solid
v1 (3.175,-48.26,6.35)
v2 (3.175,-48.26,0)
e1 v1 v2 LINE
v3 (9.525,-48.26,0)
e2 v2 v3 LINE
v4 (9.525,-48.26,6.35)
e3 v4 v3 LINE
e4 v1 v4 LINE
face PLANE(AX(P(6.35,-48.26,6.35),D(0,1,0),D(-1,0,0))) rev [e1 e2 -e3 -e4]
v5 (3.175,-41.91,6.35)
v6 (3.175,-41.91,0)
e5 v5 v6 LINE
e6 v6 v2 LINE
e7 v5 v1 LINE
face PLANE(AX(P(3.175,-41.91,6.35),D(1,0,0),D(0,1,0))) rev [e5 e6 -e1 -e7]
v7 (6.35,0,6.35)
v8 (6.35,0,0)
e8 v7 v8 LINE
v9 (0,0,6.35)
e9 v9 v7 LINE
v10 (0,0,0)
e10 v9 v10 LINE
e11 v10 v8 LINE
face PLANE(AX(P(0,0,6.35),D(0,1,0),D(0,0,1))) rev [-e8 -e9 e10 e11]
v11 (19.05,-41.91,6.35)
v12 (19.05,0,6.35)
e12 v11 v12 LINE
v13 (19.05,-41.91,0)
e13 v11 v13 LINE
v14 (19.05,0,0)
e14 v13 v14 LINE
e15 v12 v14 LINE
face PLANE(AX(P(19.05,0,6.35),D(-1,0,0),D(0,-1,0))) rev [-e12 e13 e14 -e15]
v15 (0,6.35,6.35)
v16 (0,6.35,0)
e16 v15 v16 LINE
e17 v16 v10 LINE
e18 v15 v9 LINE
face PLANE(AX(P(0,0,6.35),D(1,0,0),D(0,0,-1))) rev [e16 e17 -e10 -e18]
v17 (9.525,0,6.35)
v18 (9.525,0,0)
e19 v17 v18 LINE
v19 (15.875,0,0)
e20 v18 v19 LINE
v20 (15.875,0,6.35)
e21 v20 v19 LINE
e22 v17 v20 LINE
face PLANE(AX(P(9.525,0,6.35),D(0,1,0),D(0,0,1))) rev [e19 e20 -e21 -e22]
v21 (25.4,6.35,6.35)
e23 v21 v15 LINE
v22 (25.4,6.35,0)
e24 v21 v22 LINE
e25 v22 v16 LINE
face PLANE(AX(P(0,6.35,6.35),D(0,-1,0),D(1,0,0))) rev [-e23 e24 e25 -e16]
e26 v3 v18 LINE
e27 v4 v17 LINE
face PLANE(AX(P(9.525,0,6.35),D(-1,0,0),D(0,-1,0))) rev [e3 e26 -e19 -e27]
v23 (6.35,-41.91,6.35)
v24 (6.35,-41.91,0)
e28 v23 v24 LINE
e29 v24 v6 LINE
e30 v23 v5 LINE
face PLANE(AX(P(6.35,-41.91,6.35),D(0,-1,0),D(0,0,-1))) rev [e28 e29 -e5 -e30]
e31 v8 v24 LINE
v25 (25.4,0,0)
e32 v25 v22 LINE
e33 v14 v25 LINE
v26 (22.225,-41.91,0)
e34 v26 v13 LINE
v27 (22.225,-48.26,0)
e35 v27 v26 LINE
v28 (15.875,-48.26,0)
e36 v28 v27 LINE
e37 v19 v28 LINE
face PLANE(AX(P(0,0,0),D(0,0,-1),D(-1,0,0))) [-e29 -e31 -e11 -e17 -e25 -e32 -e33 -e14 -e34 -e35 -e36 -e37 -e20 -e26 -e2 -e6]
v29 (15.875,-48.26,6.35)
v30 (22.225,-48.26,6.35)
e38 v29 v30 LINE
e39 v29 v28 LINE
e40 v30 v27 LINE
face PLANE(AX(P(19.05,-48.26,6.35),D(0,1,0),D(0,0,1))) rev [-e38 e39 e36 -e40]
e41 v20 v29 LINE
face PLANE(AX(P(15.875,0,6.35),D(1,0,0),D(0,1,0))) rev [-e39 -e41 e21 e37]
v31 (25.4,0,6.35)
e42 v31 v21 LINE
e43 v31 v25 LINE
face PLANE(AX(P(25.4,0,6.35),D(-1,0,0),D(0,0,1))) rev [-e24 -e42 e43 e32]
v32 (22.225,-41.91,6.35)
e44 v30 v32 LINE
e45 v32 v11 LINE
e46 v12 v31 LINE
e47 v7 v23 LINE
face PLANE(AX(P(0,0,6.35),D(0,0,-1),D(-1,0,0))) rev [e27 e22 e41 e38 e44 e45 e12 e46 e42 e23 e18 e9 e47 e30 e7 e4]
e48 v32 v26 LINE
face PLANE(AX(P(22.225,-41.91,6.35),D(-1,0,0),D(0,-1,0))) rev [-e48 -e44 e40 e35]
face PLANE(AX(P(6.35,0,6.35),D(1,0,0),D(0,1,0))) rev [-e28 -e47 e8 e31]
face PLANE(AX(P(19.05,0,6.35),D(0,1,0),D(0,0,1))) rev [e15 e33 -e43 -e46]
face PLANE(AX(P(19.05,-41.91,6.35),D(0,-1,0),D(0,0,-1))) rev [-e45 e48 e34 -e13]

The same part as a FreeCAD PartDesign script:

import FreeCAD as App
import Part
import Sketcher

V = App.Vector
Q = App.Units.Quantity

doc = App.newDocument("Part")
params = doc.addObject("Spreadsheet::Sheet", "Params")
for row, (alias, value) in enumerate([
    ("sketch1_width", "1 in"),
    ("sketch1_height", "1.9 in"),
    ("sketch1_width2", "0.25 in"),
    ("pad1_length", "0.25 in"),
], start=1):
    params.set(f"A{row}", alias)
    params.set(f"B{row}", "=" + value)
    params.setAlias(f"B{row}", alias)

body = doc.addObject("PartDesign::Body", "Body")

# Sketch on XY plane
sketch1 = body.newObject("Sketcher::SketchObject", "Sketch")
sketch1.AttachmentSupport = (doc.getObject("XY_Plane"), [""])
sketch1.MapMode = "FlatFace"
sketch1.addGeometry(Part.LineSegment(V(0, 0, 0), V(6.3, 0, 0)), False)
sketch1.addGeometry(Part.LineSegment(V(6.3, 0, 0), V(6.3, -41.9, 0)), False)
sketch1.addGeometry(Part.LineSegment(V(6.3, -41.9, 0), V(3.2, -41.9, 0)), False)
sketch1.addGeometry(Part.LineSegment(V(3.2, -41.9, 0), V(3.2, -48.3, 0)), False)
sketch1.addGeometry(Part.LineSegment(V(3.2, -48.3, 0), V(9.5, -48.3, 0)), False)
sketch1.addGeometry(Part.LineSegment(V(9.5, -48.3, 0), V(9.5, 0, 0)), False)
sketch1.addGeometry(Part.LineSegment(V(9.5, 0, 0), V(15.9, 0, 0)), False)
sketch1.addGeometry(Part.LineSegment(V(15.9, 0, 0), V(15.9, -48.3, 0)), False)
sketch1.addGeometry(Part.LineSegment(V(15.9, -48.3, 0), V(22.2, -48.3, 0)), False)
sketch1.addGeometry(Part.LineSegment(V(22.2, -48.3, 0), V(22.2, -41.9, 0)), False)
sketch1.addGeometry(Part.LineSegment(V(22.2, -41.9, 0), V(19.1, -41.9, 0)), False)
sketch1.addGeometry(Part.LineSegment(V(19.1, -41.9, 0), V(19.1, 0, 0)), False)
sketch1.addGeometry(Part.LineSegment(V(19.1, 0, 0), V(25.4, 0, 0)), False)
sketch1.addGeometry(Part.LineSegment(V(25.4, 0, 0), V(25.4, 6.3, 0)), False)
sketch1.addGeometry(Part.LineSegment(V(25.4, 6.3, 0), V(0, 6.3, 0)), False)
sketch1.addGeometry(Part.LineSegment(V(0, 6.3, 0), V(0, 0, 0)), False)
sketch1.addConstraint(Sketcher.Constraint("Coincident", 0, 2, 1, 1))
sketch1.addConstraint(Sketcher.Constraint("Coincident", 1, 2, 2, 1))
sketch1.addConstraint(Sketcher.Constraint("Coincident", 2, 2, 3, 1))
sketch1.addConstraint(Sketcher.Constraint("Coincident", 3, 2, 4, 1))
sketch1.addConstraint(Sketcher.Constraint("Coincident", 4, 2, 5, 1))
sketch1.addConstraint(Sketcher.Constraint("Coincident", 5, 2, 6, 1))
sketch1.addConstraint(Sketcher.Constraint("Coincident", 6, 2, 7, 1))
sketch1.addConstraint(Sketcher.Constraint("Coincident", 7, 2, 8, 1))
sketch1.addConstraint(Sketcher.Constraint("Coincident", 8, 2, 9, 1))
sketch1.addConstraint(Sketcher.Constraint("Coincident", 9, 2, 10, 1))
sketch1.addConstraint(Sketcher.Constraint("Coincident", 10, 2, 11, 1))
sketch1.addConstraint(Sketcher.Constraint("Coincident", 11, 2, 12, 1))
sketch1.addConstraint(Sketcher.Constraint("Coincident", 12, 2, 13, 1))
sketch1.addConstraint(Sketcher.Constraint("Coincident", 13, 2, 14, 1))
sketch1.addConstraint(Sketcher.Constraint("Coincident", 14, 2, 15, 1))
sketch1.addConstraint(Sketcher.Constraint("Coincident", 15, 2, 0, 1))
sketch1.addConstraint(Sketcher.Constraint("Horizontal", 0))
sketch1.addConstraint(Sketcher.Constraint("Vertical", 1))
sketch1.addConstraint(Sketcher.Constraint("Horizontal", 2))
sketch1.addConstraint(Sketcher.Constraint("Vertical", 3))
sketch1.addConstraint(Sketcher.Constraint("Horizontal", 4))
sketch1.addConstraint(Sketcher.Constraint("Vertical", 5))
sketch1.addConstraint(Sketcher.Constraint("Horizontal", 6))
sketch1.addConstraint(Sketcher.Constraint("Vertical", 7))
sketch1.addConstraint(Sketcher.Constraint("Horizontal", 8))
sketch1.addConstraint(Sketcher.Constraint("Vertical", 9))
sketch1.addConstraint(Sketcher.Constraint("Horizontal", 10))
sketch1.addConstraint(Sketcher.Constraint("Vertical", 11))
sketch1.addConstraint(Sketcher.Constraint("Horizontal", 12))
sketch1.addConstraint(Sketcher.Constraint("Vertical", 13))
sketch1.addConstraint(Sketcher.Constraint("Horizontal", 14))
sketch1.addConstraint(Sketcher.Constraint("Vertical", 15))
sketch1.addConstraint(Sketcher.Constraint("Coincident", 15, 2, -1, 1))
sketch1.addConstraint(Sketcher.Constraint("PointOnObject", 5, 2, -1))
sketch1.addConstraint(Sketcher.Constraint("PointOnObject", 11, 2, -1))
sketch1.addConstraint(Sketcher.Constraint("Horizontal", 4, 2, 7, 2))
sketch1.addConstraint(Sketcher.Constraint("Horizontal", 2, 2, 9, 2))
sketch1.addConstraint(Sketcher.Constraint("Equal", 0, 4))
sketch1.addConstraint(Sketcher.Constraint("Equal", 4, 6))
sketch1.addConstraint(Sketcher.Constraint("Equal", 6, 8))
sketch1.addConstraint(Sketcher.Constraint("Equal", 2, 10))
sketch1.addConstraint(Sketcher.Constraint("Equal", 8, 12))
sketch1.addConstraint(Sketcher.Constraint("Equal", 12, 3))
sketch1.addConstraint(Sketcher.Constraint("Equal", 9, 13))
sketch1.addConstraint(Sketcher.Constraint("DistanceX", 14, 2, 14, 1, Q("1 in")))
sketch1.addConstraint(Sketcher.Constraint("DistanceY", 5, 1, 5, 2, Q("1.9 in")))
sketch1.addConstraint(Sketcher.Constraint("DistanceX", 0, 1, 0, 2, Q("0.25 in")))
sketch1.setExpression("Constraints[44]", "Params.sketch1_width")
sketch1.setExpression("Constraints[45]", "Params.sketch1_height")
sketch1.setExpression("Constraints[46]", "Params.sketch1_width2")
pad1 = body.newObject("PartDesign::Pad", "Pad")
pad1.Profile = sketch1
pad1.setExpression("Length", "Params.pad1_length")

doc.recompute()
